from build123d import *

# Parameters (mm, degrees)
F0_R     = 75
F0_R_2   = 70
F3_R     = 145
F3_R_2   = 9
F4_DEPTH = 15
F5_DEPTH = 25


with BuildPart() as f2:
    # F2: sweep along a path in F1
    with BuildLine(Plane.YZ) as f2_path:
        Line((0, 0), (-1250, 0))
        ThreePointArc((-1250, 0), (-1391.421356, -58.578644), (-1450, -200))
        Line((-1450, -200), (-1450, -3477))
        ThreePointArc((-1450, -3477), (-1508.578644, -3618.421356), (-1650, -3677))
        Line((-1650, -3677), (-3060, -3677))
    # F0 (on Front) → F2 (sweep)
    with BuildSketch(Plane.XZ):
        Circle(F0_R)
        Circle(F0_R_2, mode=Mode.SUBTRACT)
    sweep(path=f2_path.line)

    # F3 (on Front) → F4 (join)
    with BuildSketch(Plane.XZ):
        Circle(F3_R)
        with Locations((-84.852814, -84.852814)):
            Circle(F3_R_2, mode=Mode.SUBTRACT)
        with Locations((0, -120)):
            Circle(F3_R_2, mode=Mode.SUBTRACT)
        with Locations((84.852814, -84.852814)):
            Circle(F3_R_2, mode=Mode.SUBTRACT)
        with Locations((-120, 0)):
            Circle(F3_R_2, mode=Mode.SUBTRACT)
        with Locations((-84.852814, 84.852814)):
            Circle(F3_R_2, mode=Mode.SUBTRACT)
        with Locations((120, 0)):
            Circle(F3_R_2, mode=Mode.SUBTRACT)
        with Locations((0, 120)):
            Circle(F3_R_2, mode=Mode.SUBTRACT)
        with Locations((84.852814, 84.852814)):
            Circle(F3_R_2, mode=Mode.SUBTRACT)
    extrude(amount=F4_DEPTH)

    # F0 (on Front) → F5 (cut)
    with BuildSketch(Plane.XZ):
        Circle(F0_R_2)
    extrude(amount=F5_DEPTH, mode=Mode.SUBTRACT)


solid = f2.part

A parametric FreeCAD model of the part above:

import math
import FreeCAD as App
import Part
import Sketcher
Q = App.Units.Quantity

doc = App.newDocument("Part")
body = doc.addObject("PartDesign::Body", "Body")

# Sketch on XZ plane
sketch1 = body.newObject("Sketcher::SketchObject", "Sketch")
sketch1.AttachmentSupport = (doc.getObject("XZ_Plane"), [""])
sketch1.MapMode = "FlatFace"
sketch1.addGeometry([
    Part.Circle(App.Vector(0, 0, 0), App.Vector(0, 0, 1), 75),
    Part.Circle(App.Vector(0, 0, 0), App.Vector(0, 0, 1), 70),
], False)
sketch1.addConstraint([
    Sketcher.Constraint("Coincident", 0, 3, -1, 1),
    Sketcher.Constraint("Coincident", 1, 3, -1, 1),
    Sketcher.Constraint("Diameter", 0, Q("150 mm")),
    Sketcher.Constraint("Diameter", 1, Q("140 mm")),
])

# Sketch on YZ plane
sketch2 = body.newObject("Sketcher::SketchObject", "Sketch001")
sketch2.AttachmentSupport = (doc.getObject("YZ_Plane"), [""])
sketch2.MapMode = "FlatFace"
sketch2.addGeometry([
    Part.LineSegment(App.Vector(0, 0, 0), App.Vector(-1250, 0, 0)),  # 0
    Part.ArcOfCircle(Part.Circle(App.Vector(-1249.999999, -200.000001, 0), App.Vector(0, 0, 1), 200.000001), math.radians(90), math.radians(180)),  # 1
    Part.LineSegment(App.Vector(-1450, -200, 0), App.Vector(-1450, -3477, 0)),  # 2
    Part.ArcOfCircle(Part.Circle(App.Vector(-1650.000001, -3476.999999, 0), App.Vector(0, 0, 1), 200.000001), math.radians(-90), math.radians(0)),  # 3
    Part.LineSegment(App.Vector(-1650, -3677, 0), App.Vector(-3060, -3677, 0)),  # 4
], False)
sketch2.addConstraint([
    Sketcher.Constraint("Tangent", 0, 2, 1, 1),
    Sketcher.Constraint("Tangent", 1, 2, 2, 1),
    Sketcher.Constraint("Tangent", 2, 2, 3, 2),
    Sketcher.Constraint("Tangent", 3, 1, 4, 1),
    Sketcher.Constraint("Horizontal", 0),
    Sketcher.Constraint("Vertical", 2),
    Sketcher.Constraint("Horizontal", 4),
    Sketcher.Constraint("Coincident", 0, 1, -1, 1),
    Sketcher.Constraint("Equal", 1, 3),
    Sketcher.Constraint("Radius", 1, Q("200.000001 mm")),
    Sketcher.Constraint("DistanceX", 0, 2, 0, 1, Q("1250 mm")),
    Sketcher.Constraint("DistanceX", 4, 2, 4, 1, Q("1410 mm")),
    Sketcher.Constraint("DistanceY", 2, 2, 2, 1, Q("3277 mm")),
])
doc.recompute()

additivepipe = body.newObject("PartDesign::AdditivePipe", "AdditivePipe")
additivepipe.Profile = sketch1
additivepipe.Spine = (sketch2, ["Edge1", "Edge2", "Edge3", "Edge4", "Edge5"])

# Sketch on XZ plane
sketch3 = body.newObject("Sketcher::SketchObject", "Sketch002")
sketch3.AttachmentSupport = (doc.getObject("XZ_Plane"), [""])
sketch3.MapMode = "FlatFace"
sketch3.addGeometry([
    Part.Circle(App.Vector(0, 0, 0), App.Vector(0, 0, 1), 145),  # 0
    Part.Circle(App.Vector(-84.852814, -84.852814, 0), App.Vector(0, 0, 1), 9),  # 1
    Part.Circle(App.Vector(0, -120, 0), App.Vector(0, 0, 1), 9),  # 2
    Part.Circle(App.Vector(84.852814, -84.852814, 0), App.Vector(0, 0, 1), 9),  # 3
    Part.Circle(App.Vector(-120, 0, 0), App.Vector(0, 0, 1), 9),  # 4
    Part.Circle(App.Vector(-84.852814, 84.852814, 0), App.Vector(0, 0, 1), 9),  # 5
    Part.Circle(App.Vector(120, 0, 0), App.Vector(0, 0, 1), 9),  # 6
    Part.Circle(App.Vector(0, 120, 0), App.Vector(0, 0, 1), 9),  # 7
    Part.Circle(App.Vector(84.852814, 84.852814, 0), App.Vector(0, 0, 1), 9),  # 8
], False)
sketch3.addConstraint([
    Sketcher.Constraint("Coincident", 0, 3, -1, 1),
    Sketcher.Constraint("Equal", 1, 2),
    Sketcher.Constraint("Equal", 2, 3),
    Sketcher.Constraint("Equal", 3, 4),
    Sketcher.Constraint("Equal", 4, 5),
    Sketcher.Constraint("Equal", 5, 6),
    Sketcher.Constraint("Equal", 6, 7),
    Sketcher.Constraint("Equal", 7, 8),
    Sketcher.Constraint("Symmetric", 3, 3, 5, 3, -1, 1),
    Sketcher.Constraint("Symmetric", 4, 3, 6, 3, -1, 1),
    Sketcher.Constraint("Symmetric", 2, 3, 7, 3, -1, 1),
    Sketcher.Constraint("Symmetric", 1, 3, 8, 3, -1, 1),
    Sketcher.Constraint("Symmetric", 1, 3, 3, 3, -2),
    Sketcher.Constraint("PointOnObject", 2, 3, -2),
    Sketcher.Constraint("PointOnObject", 4, 3, -1),
    Sketcher.Constraint("Diameter", 0, Q("290 mm")),
    Sketcher.Constraint("Diameter", 1, Q("18 mm")),
    Sketcher.Constraint("DistanceY", 2, 3, -1, 1, Q("120 mm")),
    Sketcher.Constraint("DistanceX", 4, 3, -1, 1, Q("120 mm")),
    Sketcher.Constraint("DistanceX", 1, 3, -1, 1, Q("84.852814 mm")),
    Sketcher.Constraint("DistanceY", 1, 3, -1, 1, Q("84.852814 mm")),
])
pad1 = body.newObject("PartDesign::Pad", "Pad")
pad1.Profile = sketch3
pad1.Length = 15

# Sketch on XZ plane
sketch4 = body.newObject("Sketcher::SketchObject", "Sketch003")
sketch4.AttachmentSupport = (doc.getObject("XZ_Plane"), [""])
sketch4.MapMode = "FlatFace"
sketch4.addGeometry(Part.Circle(App.Vector(0, 0, 0), App.Vector(0, 0, 1), 70), False)
sketch4.addConstraint([
    Sketcher.Constraint("Coincident", 0, 3, -1, 1),
    Sketcher.Constraint("Diameter", 0, Q("140 mm")),
])
pocket1 = body.newObject("PartDesign::Pocket", "Pocket")
pocket1.Profile = sketch4
pocket1.Length = 25
pocket1.Reversed = True

doc.recompute()
